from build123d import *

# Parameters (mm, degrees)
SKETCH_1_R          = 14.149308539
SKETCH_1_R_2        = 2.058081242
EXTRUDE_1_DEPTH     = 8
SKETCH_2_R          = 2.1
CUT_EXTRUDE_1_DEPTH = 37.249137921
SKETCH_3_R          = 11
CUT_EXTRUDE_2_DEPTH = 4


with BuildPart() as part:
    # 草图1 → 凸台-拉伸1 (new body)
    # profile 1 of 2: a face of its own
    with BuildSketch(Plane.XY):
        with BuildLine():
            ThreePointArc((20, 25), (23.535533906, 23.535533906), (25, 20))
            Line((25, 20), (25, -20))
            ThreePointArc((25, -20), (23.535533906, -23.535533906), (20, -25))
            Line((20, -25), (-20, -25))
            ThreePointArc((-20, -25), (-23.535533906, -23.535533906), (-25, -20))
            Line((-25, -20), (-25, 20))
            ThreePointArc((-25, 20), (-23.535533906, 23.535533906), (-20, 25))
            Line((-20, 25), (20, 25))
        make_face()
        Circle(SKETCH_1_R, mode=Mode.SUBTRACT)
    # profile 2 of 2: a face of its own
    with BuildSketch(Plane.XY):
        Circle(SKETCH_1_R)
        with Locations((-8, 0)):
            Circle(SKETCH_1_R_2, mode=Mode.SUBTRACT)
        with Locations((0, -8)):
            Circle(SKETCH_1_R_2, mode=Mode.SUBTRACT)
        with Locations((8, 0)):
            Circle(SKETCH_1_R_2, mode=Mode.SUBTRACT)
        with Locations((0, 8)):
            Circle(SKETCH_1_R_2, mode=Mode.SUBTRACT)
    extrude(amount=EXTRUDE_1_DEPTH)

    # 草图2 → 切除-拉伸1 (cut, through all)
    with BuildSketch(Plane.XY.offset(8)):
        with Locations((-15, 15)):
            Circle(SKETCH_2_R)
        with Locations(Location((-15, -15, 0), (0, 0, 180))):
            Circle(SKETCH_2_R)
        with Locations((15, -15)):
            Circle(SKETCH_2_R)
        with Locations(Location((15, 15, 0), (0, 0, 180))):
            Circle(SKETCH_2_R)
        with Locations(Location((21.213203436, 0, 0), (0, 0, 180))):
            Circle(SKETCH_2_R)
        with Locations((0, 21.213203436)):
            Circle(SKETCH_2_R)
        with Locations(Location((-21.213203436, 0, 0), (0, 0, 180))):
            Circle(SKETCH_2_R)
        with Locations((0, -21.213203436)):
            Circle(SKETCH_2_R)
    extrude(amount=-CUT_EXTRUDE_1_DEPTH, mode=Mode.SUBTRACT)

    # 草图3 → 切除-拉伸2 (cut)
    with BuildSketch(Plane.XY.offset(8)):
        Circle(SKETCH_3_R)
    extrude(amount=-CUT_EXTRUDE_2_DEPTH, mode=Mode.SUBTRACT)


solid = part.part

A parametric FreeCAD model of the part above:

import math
import FreeCAD as App
import Part
import Sketcher
Q = App.Units.Quantity

doc = App.newDocument("Part")
body = doc.addObject("PartDesign::Body", "Body")

# Sketch on XY plane
sketch1 = body.newObject("Sketcher::SketchObject", "Sketch")
sketch1.AttachmentSupport = (doc.getObject("XY_Plane"), [""])
sketch1.MapMode = "FlatFace"
sketch1.addGeometry([
    Part.ArcOfCircle(Part.Circle(App.Vector(20, 20, 0), App.Vector(0, 0, 1), 5), math.radians(0), math.radians(90)),  # 0
    Part.LineSegment(App.Vector(20, 25, 0), App.Vector(-20, 25, 0)),  # 1
    Part.ArcOfCircle(Part.Circle(App.Vector(-20, 20, 0), App.Vector(0, 0, 1), 5), math.radians(90), math.radians(180)),  # 2
    Part.LineSegment(App.Vector(-25, 20, 0), App.Vector(-25, -20, 0)),  # 3
    Part.ArcOfCircle(Part.Circle(App.Vector(-20, -20, 0), App.Vector(0, 0, 1), 5), math.radians(180), math.radians(270)),  # 4
    Part.LineSegment(App.Vector(-20, -25, 0), App.Vector(20, -25, 0)),  # 5
    Part.ArcOfCircle(Part.Circle(App.Vector(20, -20, 0), App.Vector(0, 0, 1), 5), math.radians(-90), math.radians(0)),  # 6
    Part.LineSegment(App.Vector(25, -20, 0), App.Vector(25, 20, 0)),  # 7
    Part.Circle(App.Vector(0, 8, 0), App.Vector(0, 0, 1), 2.1),  # 8
    Part.Circle(App.Vector(0, -8, 0), App.Vector(0, 0, 1), 2.1),  # 9
    Part.Circle(App.Vector(-8, 0, 0), App.Vector(0, 0, 1), 2.1),  # 10
    Part.Circle(App.Vector(8, 0, 0), App.Vector(0, 0, 1), 2.1),  # 11
], False)
sketch1.addConstraint([
    Sketcher.Constraint("Tangent", 0, 2, 1, 1),
    Sketcher.Constraint("Tangent", 1, 2, 2, 1),
    Sketcher.Constraint("Tangent", 2, 2, 3, 1),
    Sketcher.Constraint("Tangent", 3, 2, 4, 1),
    Sketcher.Constraint("Tangent", 4, 2, 5, 1),
    Sketcher.Constraint("Tangent", 5, 2, 6, 1),
    Sketcher.Constraint("Tangent", 6, 2, 7, 1),
    Sketcher.Constraint("Tangent", 7, 2, 0, 1),
    Sketcher.Constraint("Horizontal", 1),
    Sketcher.Constraint("Vertical", 3),
    Sketcher.Constraint("Horizontal", 5),
    Sketcher.Constraint("Vertical", 7),
    Sketcher.Constraint("Equal", 0, 2),
    Sketcher.Constraint("Equal", 2, 4),
    Sketcher.Constraint("Equal", 4, 6),
    Sketcher.Constraint("Equal", 8, 9),
    Sketcher.Constraint("Equal", 9, 10),
    Sketcher.Constraint("Equal", 10, 11),
    Sketcher.Constraint("Symmetric", 0, 3, 4, 3, -1, 1),
    Sketcher.Constraint("Symmetric", 8, 3, 9, 3, -1, 1),
    Sketcher.Constraint("Symmetric", 10, 3, 11, 3, -1, 1),
    Sketcher.Constraint("PointOnObject", 8, 3, -2),
    Sketcher.Constraint("PointOnObject", 10, 3, -1),
    Sketcher.Constraint("Equal", 5, 3),
    Sketcher.Constraint("Radius", 0, Q("5 mm")),
    Sketcher.Constraint("DistanceX", 1, 2, 1, 1, Q("40 mm")),
    Sketcher.Constraint("DistanceY", -1, 1, 8, 3, Q("8 mm")),
    Sketcher.Constraint("DistanceX", 10, 3, -1, 1, Q("8 mm")),
    Sketcher.Constraint("Diameter", 8, Q("4.116162 mm")),
])
pad1 = body.newObject("PartDesign::Pad", "Pad")
pad1.Profile = sketch1
pad1.Length = 8

# Sketch on XY plane
sketch2 = body.newObject("Sketcher::SketchObject", "Sketch001")
sketch2.AttachmentSupport = (doc.getObject("XY_Plane"), [""])
sketch2.MapMode = "FlatFace"
sketch2.AttachmentOffset = App.Placement(App.Vector(0, 0, 8), App.Rotation())
sketch2.addGeometry([
    Part.Circle(App.Vector(-15, 15, 0), App.Vector(0, 0, 1), 2.1),  # 0
    Part.Circle(App.Vector(-15, -15, 0), App.Vector(0, 0, 1), 2.1),  # 1
    Part.Circle(App.Vector(15, -15, 0), App.Vector(0, 0, 1), 2.1),  # 2
    Part.Circle(App.Vector(15, 15, 0), App.Vector(0, 0, 1), 2.1),  # 3
    Part.Circle(App.Vector(21.2, 0, 0), App.Vector(0, 0, 1), 2.1),  # 4
    Part.Circle(App.Vector(0, 21.2, 0), App.Vector(0, 0, 1), 2.1),  # 5
    Part.Circle(App.Vector(-21.2, 0, 0), App.Vector(0, 0, 1), 2.1),  # 6
    Part.Circle(App.Vector(0, -21.2, 0), App.Vector(0, 0, 1), 2.1),  # 7
], False)
sketch2.addConstraint([
    Sketcher.Constraint("Equal", 0, 1),
    Sketcher.Constraint("Equal", 1, 2),
    Sketcher.Constraint("Equal", 2, 3),
    Sketcher.Constraint("Equal", 3, 4),
    Sketcher.Constraint("Equal", 4, 5),
    Sketcher.Constraint("Equal", 5, 6),
    Sketcher.Constraint("Equal", 6, 7),
    Sketcher.Constraint("Symmetric", 0, 3, 2, 3, -1, 1),
    Sketcher.Constraint("Symmetric", 1, 3, 3, 3, -1, 1),
    Sketcher.Constraint("Symmetric", 4, 3, 6, 3, -1, 1),
    Sketcher.Constraint("Symmetric", 5, 3, 7, 3, -1, 1),
    Sketcher.Constraint("Symmetric", 1, 3, 2, 3, -2),
    Sketcher.Constraint("PointOnObject", 4, 3, -1),
    Sketcher.Constraint("PointOnObject", 5, 3, -2),
    Sketcher.Constraint("Diameter", 0, Q("4.2 mm")),
    Sketcher.Constraint("DistanceX", 0, 3, -1, 1, Q("15 mm")),
    Sketcher.Constraint("DistanceY", -1, 1, 0, 3, Q("15 mm")),
    Sketcher.Constraint("DistanceX", -1, 1, 4, 3, Q("21.213203 mm")),
    Sketcher.Constraint("DistanceY", -1, 1, 5, 3, Q("21.213203 mm")),
])
pocket1 = body.newObject("PartDesign::Pocket", "Pocket")
pocket1.Profile = sketch2
pocket1.Type = "ThroughAll"

# Sketch on XY plane
sketch3 = body.newObject("Sketcher::SketchObject", "Sketch002")
sketch3.AttachmentSupport = (doc.getObject("XY_Plane"), [""])
sketch3.MapMode = "FlatFace"
sketch3.AttachmentOffset = App.Placement(App.Vector(0, 0, 8), App.Rotation())
sketch3.addGeometry(Part.Circle(App.Vector(0, 0, 0), App.Vector(0, 0, 1), 11), False)
sketch3.addConstraint([
    Sketcher.Constraint("Coincident", 0, 3, -1, 1),
    Sketcher.Constraint("Diameter", 0, Q("22 mm")),
])
pocket2 = body.newObject("PartDesign::Pocket", "Pocket001")
pocket2.Profile = sketch3
pocket2.Length = 4

doc.recompute()
